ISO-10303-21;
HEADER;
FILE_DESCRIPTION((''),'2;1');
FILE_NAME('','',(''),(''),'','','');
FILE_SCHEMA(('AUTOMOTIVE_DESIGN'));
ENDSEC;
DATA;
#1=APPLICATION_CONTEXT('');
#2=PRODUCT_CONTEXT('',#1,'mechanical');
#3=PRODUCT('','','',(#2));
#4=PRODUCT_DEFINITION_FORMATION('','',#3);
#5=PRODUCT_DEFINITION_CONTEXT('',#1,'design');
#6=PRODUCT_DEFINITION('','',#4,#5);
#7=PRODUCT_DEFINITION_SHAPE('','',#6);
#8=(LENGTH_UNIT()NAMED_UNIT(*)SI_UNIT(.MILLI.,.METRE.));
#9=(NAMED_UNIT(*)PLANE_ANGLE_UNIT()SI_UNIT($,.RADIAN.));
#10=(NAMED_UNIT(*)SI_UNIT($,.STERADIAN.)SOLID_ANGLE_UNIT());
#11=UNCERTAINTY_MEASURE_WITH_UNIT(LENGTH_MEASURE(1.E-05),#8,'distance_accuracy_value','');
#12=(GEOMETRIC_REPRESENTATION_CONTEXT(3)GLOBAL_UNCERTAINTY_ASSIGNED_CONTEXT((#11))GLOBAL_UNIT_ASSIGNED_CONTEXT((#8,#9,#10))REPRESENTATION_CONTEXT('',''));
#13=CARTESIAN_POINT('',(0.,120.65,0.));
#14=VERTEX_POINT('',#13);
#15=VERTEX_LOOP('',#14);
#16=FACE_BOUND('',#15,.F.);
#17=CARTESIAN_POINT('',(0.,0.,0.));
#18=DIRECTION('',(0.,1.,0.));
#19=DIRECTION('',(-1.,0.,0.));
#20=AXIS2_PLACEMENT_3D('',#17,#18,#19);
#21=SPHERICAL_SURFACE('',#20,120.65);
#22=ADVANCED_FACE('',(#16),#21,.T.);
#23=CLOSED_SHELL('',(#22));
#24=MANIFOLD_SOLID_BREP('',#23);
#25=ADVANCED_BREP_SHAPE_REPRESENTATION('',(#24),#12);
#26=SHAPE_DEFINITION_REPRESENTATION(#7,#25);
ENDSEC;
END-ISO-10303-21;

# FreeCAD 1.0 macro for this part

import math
import FreeCAD as App
import Part
import Sketcher
from FreeCAD import Vector
Q = App.Units.Quantity

doc = App.newDocument("Part")
body = doc.addObject("PartDesign::Body", "Body")

# Sketch on XY plane
sketch1 = body.newObject("Sketcher::SketchObject", "Sketch")
sketch1.AttachmentSupport = (doc.getObject("XY_Plane"), [""])
sketch1.MapMode = "FlatFace"
sketch1.addGeometry([
    Part.LineSegment(Vector(0, -121, 0), Vector(0, 121, 0)),
    Part.ArcOfCircle(Part.Circle(Vector(0, 0, 0), Vector(0, 0, 1), 121), math.radians(90), math.radians(270)),
], False)
sketch1.addConstraint([
    Sketcher.Constraint("Coincident", 0, 1, 1, 2),
    Sketcher.Constraint("Coincident", 1, 1, 0, 2),
    Sketcher.Constraint("Vertical", 0),
    Sketcher.Constraint("Coincident", 1, 3, -1, 1),
    Sketcher.Constraint("PointOnObject", 0, 1, -2),
    Sketcher.Constraint("Radius", 1, Q("4.75 in")),
])
revolution = body.newObject("PartDesign::Revolution", "Revolution")
revolution.Profile = sketch1
revolution.ReferenceAxis = (sketch1, ["V_Axis"])
revolution.Angle = 360

doc.recompute()
